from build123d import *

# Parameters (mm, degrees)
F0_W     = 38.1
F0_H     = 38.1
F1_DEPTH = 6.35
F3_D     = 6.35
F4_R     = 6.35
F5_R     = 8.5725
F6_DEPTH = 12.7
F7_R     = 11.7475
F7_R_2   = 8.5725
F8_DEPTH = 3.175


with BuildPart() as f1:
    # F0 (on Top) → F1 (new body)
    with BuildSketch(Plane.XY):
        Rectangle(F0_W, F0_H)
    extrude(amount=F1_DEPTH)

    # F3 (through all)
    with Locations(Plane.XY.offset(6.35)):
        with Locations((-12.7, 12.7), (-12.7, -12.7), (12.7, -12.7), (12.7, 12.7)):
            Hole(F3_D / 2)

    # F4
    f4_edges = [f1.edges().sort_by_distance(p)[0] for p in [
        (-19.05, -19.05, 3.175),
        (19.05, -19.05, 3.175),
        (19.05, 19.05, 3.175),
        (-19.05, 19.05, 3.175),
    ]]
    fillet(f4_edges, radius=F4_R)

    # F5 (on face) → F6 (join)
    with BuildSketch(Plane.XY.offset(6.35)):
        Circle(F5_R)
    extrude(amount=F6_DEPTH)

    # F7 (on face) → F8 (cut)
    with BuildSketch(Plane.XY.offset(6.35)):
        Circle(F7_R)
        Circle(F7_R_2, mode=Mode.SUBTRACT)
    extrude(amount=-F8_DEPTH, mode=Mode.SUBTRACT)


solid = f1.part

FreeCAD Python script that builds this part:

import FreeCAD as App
import Part
import Sketcher
Q = App.Units.Quantity


def edges_at(feature, points):
    """Names of the edges that pass closest to the given points."""
    edges = feature.Shape.Edges
    near = lambda p: min(range(len(edges)), key=lambda i: edges[i].distToShape(Part.Vertex(*p))[0])
    return sorted({f"Edge{near(p) + 1}" for p in points})


def add_polygon(sketch, points):
    """Adds a closed chain of lines whose ends are joined by coincident constraints."""
    first, n = sketch.GeometryCount, len(points)
    for a, b in zip(points, points[1:] + points[:1]):
        sketch.addGeometry(Part.LineSegment(App.Vector(*a, 0), App.Vector(*b, 0)), False)
    for i in range(n):
        sketch.addConstraint(Sketcher.Constraint("Coincident", first + i, 2, first + (i + 1) % n, 1))

doc = App.newDocument("Part")
body = doc.addObject("PartDesign::Body", "Body")

# Sketch on XY plane
sketch1 = body.newObject("Sketcher::SketchObject", "Sketch")
sketch1.AttachmentSupport = (doc.getObject("XY_Plane"), [""])
sketch1.MapMode = "FlatFace"
add_polygon(sketch1, [(-19, 19), (-19, -19), (19, -19), (19, 19)])  # lines 0-3
sketch1.addConstraint(Sketcher.Constraint("Vertical", 0))
sketch1.addConstraint(Sketcher.Constraint("Horizontal", 1))
sketch1.addConstraint(Sketcher.Constraint("Vertical", 2))
sketch1.addConstraint(Sketcher.Constraint("Horizontal", 3))
sketch1.addConstraint(Sketcher.Constraint("Symmetric", 0, 2, 2, 2, -1, 1))
sketch1.addConstraint(Sketcher.Constraint("Equal", 3, 0))
sketch1.addConstraint(Sketcher.Constraint("DistanceX", 1, 1, 1, 2, Q("1.5 in")))
pad1 = body.newObject("PartDesign::Pad", "Pad")
pad1.Profile = sketch1
pad1.Length = Q("0.25 in")

# Sketch on XY plane
sketch2 = body.newObject("Sketcher::SketchObject", "Sketch001")
sketch2.AttachmentSupport = (doc.getObject("XY_Plane"), [""])
sketch2.MapMode = "FlatFace"
sketch2.AttachmentOffset = App.Placement(App.Vector(0, 0, 0.25 * 25.4), App.Rotation())
sketch2.addGeometry(Part.Circle(App.Vector(-12.7, 12.7, 0), App.Vector(0, 0, 1), 3.2), False)
sketch2.addGeometry(Part.Circle(App.Vector(-12.7, -12.7, 0), App.Vector(0, 0, 1), 3.2), False)
sketch2.addGeometry(Part.Circle(App.Vector(12.7, -12.7, 0), App.Vector(0, 0, 1), 3.2), False)
sketch2.addGeometry(Part.Circle(App.Vector(12.7, 12.7, 0), App.Vector(0, 0, 1), 3.2), False)
sketch2.addConstraint(Sketcher.Constraint("Equal", 0, 1))
sketch2.addConstraint(Sketcher.Constraint("Equal", 1, 2))
sketch2.addConstraint(Sketcher.Constraint("Equal", 2, 3))
sketch2.addConstraint(Sketcher.Constraint("Symmetric", 0, 3, 2, 3, -1, 1))
sketch2.addConstraint(Sketcher.Constraint("Symmetric", 1, 3, 3, 3, -1, 1))
sketch2.addConstraint(Sketcher.Constraint("Symmetric", 1, 3, 2, 3, -2))
sketch2.addConstraint(Sketcher.Constraint("Diameter", 0, Q("0.25 in")))
sketch2.addConstraint(Sketcher.Constraint("DistanceY", 1, 3, 0, 3, Q("1 in")))
sketch2.addConstraint(Sketcher.Constraint("DistanceX", 1, 3, 2, 3, Q("1 in")))
doc.recompute()
hole = body.newObject("PartDesign::Hole", "Hole")
hole.Profile = sketch2
hole.ThreadType = "None"
hole.Diameter = Q("0.25 in")
hole.DepthType = "ThroughAll"
doc.recompute()

fillet = body.newObject("PartDesign::Fillet", "Fillet")
fillet.Base = (hole, edges_at(hole, [
    (-19.05, -19.05, 3.175),
    (19.05, -19.05, 3.175),
    (19.05, 19.05, 3.175),
    (-19.05, 19.05, 3.175),
]))
fillet.Radius = Q("0.25 in")

# Sketch on XY plane
sketch3 = body.newObject("Sketcher::SketchObject", "Sketch002")
sketch3.AttachmentSupport = (doc.getObject("XY_Plane"), [""])
sketch3.MapMode = "FlatFace"
sketch3.AttachmentOffset = App.Placement(App.Vector(0, 0, 0.25 * 25.4), App.Rotation())
sketch3.addGeometry(Part.Circle(App.Vector(0, 0, 0), App.Vector(0, 0, 1), 9), False)
sketch3.addConstraint(Sketcher.Constraint("Coincident", 0, 3, -1, 1))
sketch3.addConstraint(Sketcher.Constraint("Diameter", 0, Q("0.675 in")))
pad2 = body.newObject("PartDesign::Pad", "Pad001")
pad2.Profile = sketch3
pad2.Length = Q("0.5 in")

# Sketch on XY plane
sketch4 = body.newObject("Sketcher::SketchObject", "Sketch003")
sketch4.AttachmentSupport = (doc.getObject("XY_Plane"), [""])
sketch4.MapMode = "FlatFace"
sketch4.AttachmentOffset = App.Placement(App.Vector(0, 0, 0.25 * 25.4), App.Rotation())
sketch4.addGeometry(Part.Circle(App.Vector(0, 0, 0), App.Vector(0, 0, 1), 12), False)
sketch4.addGeometry(Part.Circle(App.Vector(0, 0, 0), App.Vector(0, 0, 1), 9), False)
sketch4.addConstraint(Sketcher.Constraint("Coincident", 0, 3, -1, 1))
sketch4.addConstraint(Sketcher.Constraint("Coincident", 1, 3, -1, 1))
sketch4.addConstraint(Sketcher.Constraint("Diameter", 0, Q("0.925 in")))
sketch4.addConstraint(Sketcher.Constraint("Diameter", 1, Q("0.675 in")))
pocket1 = body.newObject("PartDesign::Pocket", "Pocket")
pocket1.Profile = sketch4
pocket1.Length = Q("0.125 in")

doc.recompute()
